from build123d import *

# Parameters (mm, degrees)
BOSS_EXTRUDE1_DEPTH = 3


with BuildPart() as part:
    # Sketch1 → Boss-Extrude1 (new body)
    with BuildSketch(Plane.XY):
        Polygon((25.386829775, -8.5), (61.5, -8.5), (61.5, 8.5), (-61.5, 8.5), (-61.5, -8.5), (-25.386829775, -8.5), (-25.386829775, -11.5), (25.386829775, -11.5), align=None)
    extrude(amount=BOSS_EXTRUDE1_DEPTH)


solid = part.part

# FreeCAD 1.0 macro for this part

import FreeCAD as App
import Part
import Sketcher
Q = App.Units.Quantity

doc = App.newDocument("Part")
body = doc.addObject("PartDesign::Body", "Body")

sketch1 = body.newObject("Sketcher::SketchObject", "Sketch")
sketch1.AttachmentSupport = (doc.getObject("XY_Plane"), [""])
sketch1.MapMode = "FlatFace"
sketch1.addGeometry(Part.LineSegment(App.Vector(25.4, -8.5, 0), App.Vector(61.5, -8.5, 0)), False)
sketch1.addGeometry(Part.LineSegment(App.Vector(61.5, -8.5, 0), App.Vector(61.5, 8.5, 0)), False)
sketch1.addGeometry(Part.LineSegment(App.Vector(61.5, 8.5, 0), App.Vector(-61.5, 8.5, 0)), False)
sketch1.addGeometry(Part.LineSegment(App.Vector(-61.5, 8.5, 0), App.Vector(-61.5, -8.5, 0)), False)
sketch1.addGeometry(Part.LineSegment(App.Vector(-61.5, -8.5, 0), App.Vector(-25.4, -8.5, 0)), False)
sketch1.addGeometry(Part.LineSegment(App.Vector(-25.4, -8.5, 0), App.Vector(-25.4, -11.5, 0)), False)
sketch1.addGeometry(Part.LineSegment(App.Vector(-25.4, -11.5, 0), App.Vector(25.4, -11.5, 0)), False)
sketch1.addGeometry(Part.LineSegment(App.Vector(25.4, -11.5, 0), App.Vector(25.4, -8.5, 0)), False)
sketch1.addConstraint(Sketcher.Constraint("Coincident", 0, 2, 1, 1))
sketch1.addConstraint(Sketcher.Constraint("Coincident", 1, 2, 2, 1))
sketch1.addConstraint(Sketcher.Constraint("Coincident", 2, 2, 3, 1))
sketch1.addConstraint(Sketcher.Constraint("Coincident", 3, 2, 4, 1))
sketch1.addConstraint(Sketcher.Constraint("Coincident", 4, 2, 5, 1))
sketch1.addConstraint(Sketcher.Constraint("Coincident", 5, 2, 6, 1))
sketch1.addConstraint(Sketcher.Constraint("Coincident", 6, 2, 7, 1))
sketch1.addConstraint(Sketcher.Constraint("Coincident", 7, 2, 0, 1))
sketch1.addConstraint(Sketcher.Constraint("Horizontal", 0))
sketch1.addConstraint(Sketcher.Constraint("Vertical", 1))
sketch1.addConstraint(Sketcher.Constraint("Horizontal", 2))
sketch1.addConstraint(Sketcher.Constraint("Vertical", 3))
sketch1.addConstraint(Sketcher.Constraint("Horizontal", 4))
sketch1.addConstraint(Sketcher.Constraint("Vertical", 5))
sketch1.addConstraint(Sketcher.Constraint("Horizontal", 6))
sketch1.addConstraint(Sketcher.Constraint("Vertical", 7))
sketch1.addConstraint(Sketcher.Constraint("Symmetric", 0, 2, 2, 2, -1, 1))
sketch1.addConstraint(Sketcher.Constraint("Symmetric", 4, 2, 7, 2, -2))
sketch1.addConstraint(Sketcher.Constraint("DistanceX", 2, 2, 2, 1, Q("123 mm")))
sketch1.addConstraint(Sketcher.Constraint("DistanceY", 1, 1, 1, 2, Q("17 mm")))
sketch1.addConstraint(Sketcher.Constraint("DistanceY", 5, 2, 5, 1, Q("3 mm")))
sketch1.addConstraint(Sketcher.Constraint("DistanceX", 0, 1, 0, 2, Q("36.11317 mm")))
pad1 = body.newObject("PartDesign::Pad", "Pad")
pad1.Profile = sketch1
pad1.Length = 3

doc.recompute()
